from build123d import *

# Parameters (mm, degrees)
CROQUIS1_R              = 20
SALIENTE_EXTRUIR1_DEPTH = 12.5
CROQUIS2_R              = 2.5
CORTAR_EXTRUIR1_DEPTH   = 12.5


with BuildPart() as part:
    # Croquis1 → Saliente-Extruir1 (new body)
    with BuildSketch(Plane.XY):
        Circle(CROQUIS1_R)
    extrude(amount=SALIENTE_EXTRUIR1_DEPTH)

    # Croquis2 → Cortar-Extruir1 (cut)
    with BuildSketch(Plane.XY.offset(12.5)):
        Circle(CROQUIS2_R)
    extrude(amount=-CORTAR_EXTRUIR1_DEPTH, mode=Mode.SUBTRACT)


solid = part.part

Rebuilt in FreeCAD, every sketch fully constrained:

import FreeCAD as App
import Part
import Sketcher
from FreeCAD import Vector

doc = App.newDocument("Part")
body = doc.addObject("PartDesign::Body", "Body")

sketch1 = doc.addObject("Sketcher::SketchObject", "Sketch")
body.addObject(sketch1)
sketch1.AttachmentSupport = (doc.XY_Plane, [""])
sketch1.MapMode = "FlatFace"
sketch1.addGeometry(Part.Circle(Vector(0, 0, 0), Vector(0, 0, 1), 20), False)
sketch1.addConstraint(Sketcher.Constraint("Coincident", 0, 3, -1, 1))
sketch1.addConstraint(Sketcher.Constraint("Diameter", 0, 40.0))
pad1 = doc.addObject("PartDesign::Pad", "Pad")
body.addObject(pad1)
pad1.Profile = sketch1
pad1.Length = 12.5

sketch2 = doc.addObject("Sketcher::SketchObject", "Sketch001")
body.addObject(sketch2)
sketch2.AttachmentSupport = (doc.XY_Plane, [""])
sketch2.MapMode = "FlatFace"
sketch2.AttachmentOffset = App.Placement(Vector(0, 0, 12.5), App.Rotation())
sketch2.addGeometry(Part.Circle(Vector(0, 0, 0), Vector(0, 0, 1), 2.5), False)
sketch2.addConstraint(Sketcher.Constraint("Coincident", 0, 3, -1, 1))
sketch2.addConstraint(Sketcher.Constraint("Diameter", 0, 5.0))
pocket1 = doc.addObject("PartDesign::Pocket", "Pocket")
body.addObject(pocket1)
pocket1.Profile = sketch2
pocket1.Length = 12.5

doc.recompute()
